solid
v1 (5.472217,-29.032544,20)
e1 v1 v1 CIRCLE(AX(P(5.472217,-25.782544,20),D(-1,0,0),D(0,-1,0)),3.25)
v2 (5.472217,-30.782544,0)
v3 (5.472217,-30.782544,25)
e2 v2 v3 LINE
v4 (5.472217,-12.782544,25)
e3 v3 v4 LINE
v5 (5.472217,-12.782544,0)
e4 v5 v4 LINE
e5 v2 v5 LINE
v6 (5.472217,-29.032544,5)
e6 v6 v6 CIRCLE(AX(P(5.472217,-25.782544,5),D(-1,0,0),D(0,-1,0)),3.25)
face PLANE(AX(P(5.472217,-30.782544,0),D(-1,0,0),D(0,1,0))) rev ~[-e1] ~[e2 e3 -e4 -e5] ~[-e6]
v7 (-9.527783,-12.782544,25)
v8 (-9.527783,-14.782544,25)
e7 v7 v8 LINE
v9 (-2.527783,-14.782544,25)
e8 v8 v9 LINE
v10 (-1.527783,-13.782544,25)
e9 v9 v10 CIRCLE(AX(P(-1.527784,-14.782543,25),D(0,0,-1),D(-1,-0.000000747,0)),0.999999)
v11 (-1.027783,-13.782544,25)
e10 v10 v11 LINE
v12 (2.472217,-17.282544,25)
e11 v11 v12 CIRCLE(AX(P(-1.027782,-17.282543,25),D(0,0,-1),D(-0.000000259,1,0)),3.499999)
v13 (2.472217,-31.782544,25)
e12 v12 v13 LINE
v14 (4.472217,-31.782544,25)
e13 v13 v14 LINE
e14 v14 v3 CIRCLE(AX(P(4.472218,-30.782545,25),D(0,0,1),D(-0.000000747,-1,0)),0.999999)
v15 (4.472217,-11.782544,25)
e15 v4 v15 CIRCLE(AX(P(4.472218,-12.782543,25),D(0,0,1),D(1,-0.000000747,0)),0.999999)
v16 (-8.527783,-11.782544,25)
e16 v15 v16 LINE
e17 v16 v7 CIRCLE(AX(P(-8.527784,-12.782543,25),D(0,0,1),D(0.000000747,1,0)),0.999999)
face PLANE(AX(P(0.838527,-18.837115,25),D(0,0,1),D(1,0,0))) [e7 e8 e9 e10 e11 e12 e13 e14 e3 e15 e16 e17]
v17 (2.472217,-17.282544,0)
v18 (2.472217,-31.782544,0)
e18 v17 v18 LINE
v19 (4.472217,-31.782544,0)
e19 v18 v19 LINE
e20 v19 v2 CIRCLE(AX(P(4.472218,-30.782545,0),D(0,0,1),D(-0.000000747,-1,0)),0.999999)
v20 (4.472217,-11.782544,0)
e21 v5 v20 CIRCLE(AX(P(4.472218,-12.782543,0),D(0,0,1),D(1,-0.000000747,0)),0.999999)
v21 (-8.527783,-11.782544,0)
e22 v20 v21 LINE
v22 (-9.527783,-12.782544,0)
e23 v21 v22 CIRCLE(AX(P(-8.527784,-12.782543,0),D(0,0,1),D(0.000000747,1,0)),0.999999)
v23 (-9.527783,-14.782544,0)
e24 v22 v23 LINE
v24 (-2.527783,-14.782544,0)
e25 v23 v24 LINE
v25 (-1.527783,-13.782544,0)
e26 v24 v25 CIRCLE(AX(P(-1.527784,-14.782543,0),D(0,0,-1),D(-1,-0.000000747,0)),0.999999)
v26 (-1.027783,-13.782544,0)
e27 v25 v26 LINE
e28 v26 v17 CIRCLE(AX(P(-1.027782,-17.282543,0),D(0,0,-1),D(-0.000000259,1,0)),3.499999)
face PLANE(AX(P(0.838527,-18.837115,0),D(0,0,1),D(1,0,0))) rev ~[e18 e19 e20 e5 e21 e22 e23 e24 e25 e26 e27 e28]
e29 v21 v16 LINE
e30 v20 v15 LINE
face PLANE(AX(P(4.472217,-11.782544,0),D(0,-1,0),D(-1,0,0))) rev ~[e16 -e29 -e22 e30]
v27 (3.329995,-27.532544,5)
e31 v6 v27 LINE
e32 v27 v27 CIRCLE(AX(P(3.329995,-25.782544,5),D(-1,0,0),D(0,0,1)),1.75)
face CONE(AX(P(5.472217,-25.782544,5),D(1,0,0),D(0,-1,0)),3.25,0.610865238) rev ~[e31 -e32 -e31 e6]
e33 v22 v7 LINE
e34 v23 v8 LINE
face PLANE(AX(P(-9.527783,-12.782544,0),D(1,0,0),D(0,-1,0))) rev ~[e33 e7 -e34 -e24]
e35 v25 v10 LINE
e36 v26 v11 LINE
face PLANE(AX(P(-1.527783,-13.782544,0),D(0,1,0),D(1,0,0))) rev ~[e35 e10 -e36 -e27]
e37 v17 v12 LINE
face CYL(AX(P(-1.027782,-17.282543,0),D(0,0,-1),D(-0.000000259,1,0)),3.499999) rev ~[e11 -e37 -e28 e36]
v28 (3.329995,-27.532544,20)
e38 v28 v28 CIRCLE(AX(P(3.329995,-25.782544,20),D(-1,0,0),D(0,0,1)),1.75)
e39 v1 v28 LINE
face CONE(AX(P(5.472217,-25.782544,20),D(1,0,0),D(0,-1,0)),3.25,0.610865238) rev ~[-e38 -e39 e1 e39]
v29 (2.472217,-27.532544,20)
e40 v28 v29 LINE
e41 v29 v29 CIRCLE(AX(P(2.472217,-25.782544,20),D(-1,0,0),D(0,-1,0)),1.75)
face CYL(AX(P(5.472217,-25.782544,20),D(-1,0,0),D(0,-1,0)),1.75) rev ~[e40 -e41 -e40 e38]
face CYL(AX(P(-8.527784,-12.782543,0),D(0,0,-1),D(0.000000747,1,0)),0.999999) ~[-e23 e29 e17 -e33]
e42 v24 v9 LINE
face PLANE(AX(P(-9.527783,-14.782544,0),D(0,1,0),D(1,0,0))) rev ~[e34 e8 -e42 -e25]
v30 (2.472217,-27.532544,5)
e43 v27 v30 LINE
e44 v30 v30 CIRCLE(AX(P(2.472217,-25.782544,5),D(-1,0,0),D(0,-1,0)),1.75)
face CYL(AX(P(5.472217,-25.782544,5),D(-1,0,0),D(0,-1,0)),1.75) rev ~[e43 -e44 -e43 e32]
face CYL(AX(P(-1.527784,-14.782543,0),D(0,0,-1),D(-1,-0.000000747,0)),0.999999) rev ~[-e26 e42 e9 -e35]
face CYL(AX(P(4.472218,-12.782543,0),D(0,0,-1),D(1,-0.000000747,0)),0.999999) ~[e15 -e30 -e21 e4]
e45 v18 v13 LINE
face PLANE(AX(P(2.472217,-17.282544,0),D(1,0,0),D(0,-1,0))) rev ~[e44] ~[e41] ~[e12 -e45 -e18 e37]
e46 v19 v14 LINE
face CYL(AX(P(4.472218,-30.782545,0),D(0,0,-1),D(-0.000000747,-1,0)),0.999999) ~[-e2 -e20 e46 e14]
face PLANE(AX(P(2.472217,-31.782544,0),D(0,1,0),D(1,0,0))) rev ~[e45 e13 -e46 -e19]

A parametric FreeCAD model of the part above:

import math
import FreeCAD as App
import Part
import Sketcher

V = App.Vector

doc = App.newDocument("Part")
body = doc.addObject("PartDesign::Body", "Body")

sketch1 = body.newObject("Sketcher::SketchObject", "Sketch")
sketch1.AttachmentSupport = (doc.getObject("XY_Plane"), [""])
sketch1.MapMode = "FlatFace"
sketch1.addGeometry([
    Part.LineSegment(V(4.5, -11.8, 0), V(-8.5, -11.8, 0)),
    Part.ArcOfCircle(Part.Circle(V(-8.5, -12.8, 0), V(0, 0, 1), 1), math.radians(90), math.radians(180)),
    Part.LineSegment(V(-9.5, -12.8, 0), V(-9.5, -14.8, 0)),
    Part.LineSegment(V(-9.5, -14.8, 0), V(-2.5, -14.8, 0)),
    Part.ArcOfCircle(Part.Circle(V(-1.5, -14.8, 0), V(0, 0, 1), 1), math.radians(90), math.radians(180)),
    Part.LineSegment(V(-1.5, -13.8, 0), V(-1, -13.8, 0)),
    Part.ArcOfCircle(Part.Circle(V(-1, -17.3, 0), V(0, 0, 1), 3.5), math.radians(0), math.radians(90)),
    Part.LineSegment(V(2.5, -17.3, 0), V(2.5, -31.8, 0)),
    Part.LineSegment(V(2.5, -31.8, 0), V(4.5, -31.8, 0)),
    Part.ArcOfCircle(Part.Circle(V(4.5, -30.8, 0), V(0, 0, 1), 1), math.radians(-90), math.radians(0)),
    Part.LineSegment(V(5.5, -30.8, 0), V(5.5, -12.8, 0)),
    Part.ArcOfCircle(Part.Circle(V(4.5, -12.8, 0), V(0, 0, 1), 1), math.radians(0), math.radians(90)),
], False)
sketch1.addConstraint([
    Sketcher.Constraint("Tangent", 0, 2, 1, 1),
    Sketcher.Constraint("Tangent", 1, 2, 2, 1),
    Sketcher.Constraint("Coincident", 2, 2, 3, 1),
    Sketcher.Constraint("Coincident", 3, 2, 4, 2),
    Sketcher.Constraint("Tangent", 4, 1, 5, 1),
    Sketcher.Constraint("Tangent", 5, 2, 6, 2),
    Sketcher.Constraint("Tangent", 6, 1, 7, 1),
    Sketcher.Constraint("Coincident", 7, 2, 8, 1),
    Sketcher.Constraint("Tangent", 8, 2, 9, 1),
    Sketcher.Constraint("Tangent", 9, 2, 10, 1),
    Sketcher.Constraint("Tangent", 10, 2, 11, 1),
    Sketcher.Constraint("Tangent", 11, 2, 0, 1),
    Sketcher.Constraint("Horizontal", 0),
    Sketcher.Constraint("Vertical", 2),
    Sketcher.Constraint("Horizontal", 3),
    Sketcher.Constraint("Horizontal", 5),
    Sketcher.Constraint("Vertical", 7),
    Sketcher.Constraint("Horizontal", 8),
    Sketcher.Constraint("Vertical", 10),
    Sketcher.Constraint("Equal", 1, 4),
    Sketcher.Constraint("Equal", 4, 9),
    Sketcher.Constraint("Equal", 9, 11),
    Sketcher.Constraint("Horizontal", 4, 3, 2, 2),
    Sketcher.Constraint("Equal", 8, 2),
    Sketcher.Constraint("Radius", 1, 0.999999),
    Sketcher.Constraint("Radius", 6, 3.499999),
    Sketcher.Constraint("DistanceX", 0, 2, 0, 1, 13.0),
    Sketcher.Constraint("DistanceX", 3, 1, 3, 2, 7.0),
    Sketcher.Constraint("DistanceX", 8, 1, 8, 2, 2.0),
    Sketcher.Constraint("DistanceY", 10, 1, 10, 2, 18.0),
    Sketcher.Constraint("DistanceX", 1, 3, -1, 1, 8.527784),
    Sketcher.Constraint("DistanceY", 1, 3, -1, 1, 12.782543),
])
pad1 = body.newObject("PartDesign::Pad", "Pad")
pad1.Profile = sketch1
pad1.Length = 25

sketch2 = body.newObject("Sketcher::SketchObject", "Sketch001")
sketch2.AttachmentSupport = (doc.getObject("YZ_Plane"), [""])
sketch2.MapMode = "FlatFace"
sketch2.AttachmentOffset = App.Placement(V(0, 0, 5.472217), App.Rotation())
sketch2.addGeometry([
    Part.Circle(V(-25.8, 20, 0), V(0, 0, 1), 1.8),
    Part.Circle(V(-25.8, 5, 0), V(0, 0, 1), 1.8),
], False)
sketch2.addConstraint([
    Sketcher.Constraint("Equal", 0, 1),
    Sketcher.Constraint("Vertical", 0, 3, 1, 3),
    Sketcher.Constraint("Diameter", 0, 3.5),
    Sketcher.Constraint("DistanceY", -1, 1, 0, 3, 20.0),
    Sketcher.Constraint("DistanceY", -1, 1, 1, 3, 5.0),
    Sketcher.Constraint("DistanceX", 0, 3, -1, 1, 25.782544),
])
doc.recompute()
hole = body.newObject("PartDesign::Hole", "Hole")
hole.Profile = sketch2
hole.ThreadType = "None"
hole.Diameter = 3.5
hole.DepthType = "ThroughAll"
hole.HoleCutType = "Countersink"
hole.HoleCutDiameter = 6.5
hole.HoleCutCountersinkAngle = 70

doc.recompute()
